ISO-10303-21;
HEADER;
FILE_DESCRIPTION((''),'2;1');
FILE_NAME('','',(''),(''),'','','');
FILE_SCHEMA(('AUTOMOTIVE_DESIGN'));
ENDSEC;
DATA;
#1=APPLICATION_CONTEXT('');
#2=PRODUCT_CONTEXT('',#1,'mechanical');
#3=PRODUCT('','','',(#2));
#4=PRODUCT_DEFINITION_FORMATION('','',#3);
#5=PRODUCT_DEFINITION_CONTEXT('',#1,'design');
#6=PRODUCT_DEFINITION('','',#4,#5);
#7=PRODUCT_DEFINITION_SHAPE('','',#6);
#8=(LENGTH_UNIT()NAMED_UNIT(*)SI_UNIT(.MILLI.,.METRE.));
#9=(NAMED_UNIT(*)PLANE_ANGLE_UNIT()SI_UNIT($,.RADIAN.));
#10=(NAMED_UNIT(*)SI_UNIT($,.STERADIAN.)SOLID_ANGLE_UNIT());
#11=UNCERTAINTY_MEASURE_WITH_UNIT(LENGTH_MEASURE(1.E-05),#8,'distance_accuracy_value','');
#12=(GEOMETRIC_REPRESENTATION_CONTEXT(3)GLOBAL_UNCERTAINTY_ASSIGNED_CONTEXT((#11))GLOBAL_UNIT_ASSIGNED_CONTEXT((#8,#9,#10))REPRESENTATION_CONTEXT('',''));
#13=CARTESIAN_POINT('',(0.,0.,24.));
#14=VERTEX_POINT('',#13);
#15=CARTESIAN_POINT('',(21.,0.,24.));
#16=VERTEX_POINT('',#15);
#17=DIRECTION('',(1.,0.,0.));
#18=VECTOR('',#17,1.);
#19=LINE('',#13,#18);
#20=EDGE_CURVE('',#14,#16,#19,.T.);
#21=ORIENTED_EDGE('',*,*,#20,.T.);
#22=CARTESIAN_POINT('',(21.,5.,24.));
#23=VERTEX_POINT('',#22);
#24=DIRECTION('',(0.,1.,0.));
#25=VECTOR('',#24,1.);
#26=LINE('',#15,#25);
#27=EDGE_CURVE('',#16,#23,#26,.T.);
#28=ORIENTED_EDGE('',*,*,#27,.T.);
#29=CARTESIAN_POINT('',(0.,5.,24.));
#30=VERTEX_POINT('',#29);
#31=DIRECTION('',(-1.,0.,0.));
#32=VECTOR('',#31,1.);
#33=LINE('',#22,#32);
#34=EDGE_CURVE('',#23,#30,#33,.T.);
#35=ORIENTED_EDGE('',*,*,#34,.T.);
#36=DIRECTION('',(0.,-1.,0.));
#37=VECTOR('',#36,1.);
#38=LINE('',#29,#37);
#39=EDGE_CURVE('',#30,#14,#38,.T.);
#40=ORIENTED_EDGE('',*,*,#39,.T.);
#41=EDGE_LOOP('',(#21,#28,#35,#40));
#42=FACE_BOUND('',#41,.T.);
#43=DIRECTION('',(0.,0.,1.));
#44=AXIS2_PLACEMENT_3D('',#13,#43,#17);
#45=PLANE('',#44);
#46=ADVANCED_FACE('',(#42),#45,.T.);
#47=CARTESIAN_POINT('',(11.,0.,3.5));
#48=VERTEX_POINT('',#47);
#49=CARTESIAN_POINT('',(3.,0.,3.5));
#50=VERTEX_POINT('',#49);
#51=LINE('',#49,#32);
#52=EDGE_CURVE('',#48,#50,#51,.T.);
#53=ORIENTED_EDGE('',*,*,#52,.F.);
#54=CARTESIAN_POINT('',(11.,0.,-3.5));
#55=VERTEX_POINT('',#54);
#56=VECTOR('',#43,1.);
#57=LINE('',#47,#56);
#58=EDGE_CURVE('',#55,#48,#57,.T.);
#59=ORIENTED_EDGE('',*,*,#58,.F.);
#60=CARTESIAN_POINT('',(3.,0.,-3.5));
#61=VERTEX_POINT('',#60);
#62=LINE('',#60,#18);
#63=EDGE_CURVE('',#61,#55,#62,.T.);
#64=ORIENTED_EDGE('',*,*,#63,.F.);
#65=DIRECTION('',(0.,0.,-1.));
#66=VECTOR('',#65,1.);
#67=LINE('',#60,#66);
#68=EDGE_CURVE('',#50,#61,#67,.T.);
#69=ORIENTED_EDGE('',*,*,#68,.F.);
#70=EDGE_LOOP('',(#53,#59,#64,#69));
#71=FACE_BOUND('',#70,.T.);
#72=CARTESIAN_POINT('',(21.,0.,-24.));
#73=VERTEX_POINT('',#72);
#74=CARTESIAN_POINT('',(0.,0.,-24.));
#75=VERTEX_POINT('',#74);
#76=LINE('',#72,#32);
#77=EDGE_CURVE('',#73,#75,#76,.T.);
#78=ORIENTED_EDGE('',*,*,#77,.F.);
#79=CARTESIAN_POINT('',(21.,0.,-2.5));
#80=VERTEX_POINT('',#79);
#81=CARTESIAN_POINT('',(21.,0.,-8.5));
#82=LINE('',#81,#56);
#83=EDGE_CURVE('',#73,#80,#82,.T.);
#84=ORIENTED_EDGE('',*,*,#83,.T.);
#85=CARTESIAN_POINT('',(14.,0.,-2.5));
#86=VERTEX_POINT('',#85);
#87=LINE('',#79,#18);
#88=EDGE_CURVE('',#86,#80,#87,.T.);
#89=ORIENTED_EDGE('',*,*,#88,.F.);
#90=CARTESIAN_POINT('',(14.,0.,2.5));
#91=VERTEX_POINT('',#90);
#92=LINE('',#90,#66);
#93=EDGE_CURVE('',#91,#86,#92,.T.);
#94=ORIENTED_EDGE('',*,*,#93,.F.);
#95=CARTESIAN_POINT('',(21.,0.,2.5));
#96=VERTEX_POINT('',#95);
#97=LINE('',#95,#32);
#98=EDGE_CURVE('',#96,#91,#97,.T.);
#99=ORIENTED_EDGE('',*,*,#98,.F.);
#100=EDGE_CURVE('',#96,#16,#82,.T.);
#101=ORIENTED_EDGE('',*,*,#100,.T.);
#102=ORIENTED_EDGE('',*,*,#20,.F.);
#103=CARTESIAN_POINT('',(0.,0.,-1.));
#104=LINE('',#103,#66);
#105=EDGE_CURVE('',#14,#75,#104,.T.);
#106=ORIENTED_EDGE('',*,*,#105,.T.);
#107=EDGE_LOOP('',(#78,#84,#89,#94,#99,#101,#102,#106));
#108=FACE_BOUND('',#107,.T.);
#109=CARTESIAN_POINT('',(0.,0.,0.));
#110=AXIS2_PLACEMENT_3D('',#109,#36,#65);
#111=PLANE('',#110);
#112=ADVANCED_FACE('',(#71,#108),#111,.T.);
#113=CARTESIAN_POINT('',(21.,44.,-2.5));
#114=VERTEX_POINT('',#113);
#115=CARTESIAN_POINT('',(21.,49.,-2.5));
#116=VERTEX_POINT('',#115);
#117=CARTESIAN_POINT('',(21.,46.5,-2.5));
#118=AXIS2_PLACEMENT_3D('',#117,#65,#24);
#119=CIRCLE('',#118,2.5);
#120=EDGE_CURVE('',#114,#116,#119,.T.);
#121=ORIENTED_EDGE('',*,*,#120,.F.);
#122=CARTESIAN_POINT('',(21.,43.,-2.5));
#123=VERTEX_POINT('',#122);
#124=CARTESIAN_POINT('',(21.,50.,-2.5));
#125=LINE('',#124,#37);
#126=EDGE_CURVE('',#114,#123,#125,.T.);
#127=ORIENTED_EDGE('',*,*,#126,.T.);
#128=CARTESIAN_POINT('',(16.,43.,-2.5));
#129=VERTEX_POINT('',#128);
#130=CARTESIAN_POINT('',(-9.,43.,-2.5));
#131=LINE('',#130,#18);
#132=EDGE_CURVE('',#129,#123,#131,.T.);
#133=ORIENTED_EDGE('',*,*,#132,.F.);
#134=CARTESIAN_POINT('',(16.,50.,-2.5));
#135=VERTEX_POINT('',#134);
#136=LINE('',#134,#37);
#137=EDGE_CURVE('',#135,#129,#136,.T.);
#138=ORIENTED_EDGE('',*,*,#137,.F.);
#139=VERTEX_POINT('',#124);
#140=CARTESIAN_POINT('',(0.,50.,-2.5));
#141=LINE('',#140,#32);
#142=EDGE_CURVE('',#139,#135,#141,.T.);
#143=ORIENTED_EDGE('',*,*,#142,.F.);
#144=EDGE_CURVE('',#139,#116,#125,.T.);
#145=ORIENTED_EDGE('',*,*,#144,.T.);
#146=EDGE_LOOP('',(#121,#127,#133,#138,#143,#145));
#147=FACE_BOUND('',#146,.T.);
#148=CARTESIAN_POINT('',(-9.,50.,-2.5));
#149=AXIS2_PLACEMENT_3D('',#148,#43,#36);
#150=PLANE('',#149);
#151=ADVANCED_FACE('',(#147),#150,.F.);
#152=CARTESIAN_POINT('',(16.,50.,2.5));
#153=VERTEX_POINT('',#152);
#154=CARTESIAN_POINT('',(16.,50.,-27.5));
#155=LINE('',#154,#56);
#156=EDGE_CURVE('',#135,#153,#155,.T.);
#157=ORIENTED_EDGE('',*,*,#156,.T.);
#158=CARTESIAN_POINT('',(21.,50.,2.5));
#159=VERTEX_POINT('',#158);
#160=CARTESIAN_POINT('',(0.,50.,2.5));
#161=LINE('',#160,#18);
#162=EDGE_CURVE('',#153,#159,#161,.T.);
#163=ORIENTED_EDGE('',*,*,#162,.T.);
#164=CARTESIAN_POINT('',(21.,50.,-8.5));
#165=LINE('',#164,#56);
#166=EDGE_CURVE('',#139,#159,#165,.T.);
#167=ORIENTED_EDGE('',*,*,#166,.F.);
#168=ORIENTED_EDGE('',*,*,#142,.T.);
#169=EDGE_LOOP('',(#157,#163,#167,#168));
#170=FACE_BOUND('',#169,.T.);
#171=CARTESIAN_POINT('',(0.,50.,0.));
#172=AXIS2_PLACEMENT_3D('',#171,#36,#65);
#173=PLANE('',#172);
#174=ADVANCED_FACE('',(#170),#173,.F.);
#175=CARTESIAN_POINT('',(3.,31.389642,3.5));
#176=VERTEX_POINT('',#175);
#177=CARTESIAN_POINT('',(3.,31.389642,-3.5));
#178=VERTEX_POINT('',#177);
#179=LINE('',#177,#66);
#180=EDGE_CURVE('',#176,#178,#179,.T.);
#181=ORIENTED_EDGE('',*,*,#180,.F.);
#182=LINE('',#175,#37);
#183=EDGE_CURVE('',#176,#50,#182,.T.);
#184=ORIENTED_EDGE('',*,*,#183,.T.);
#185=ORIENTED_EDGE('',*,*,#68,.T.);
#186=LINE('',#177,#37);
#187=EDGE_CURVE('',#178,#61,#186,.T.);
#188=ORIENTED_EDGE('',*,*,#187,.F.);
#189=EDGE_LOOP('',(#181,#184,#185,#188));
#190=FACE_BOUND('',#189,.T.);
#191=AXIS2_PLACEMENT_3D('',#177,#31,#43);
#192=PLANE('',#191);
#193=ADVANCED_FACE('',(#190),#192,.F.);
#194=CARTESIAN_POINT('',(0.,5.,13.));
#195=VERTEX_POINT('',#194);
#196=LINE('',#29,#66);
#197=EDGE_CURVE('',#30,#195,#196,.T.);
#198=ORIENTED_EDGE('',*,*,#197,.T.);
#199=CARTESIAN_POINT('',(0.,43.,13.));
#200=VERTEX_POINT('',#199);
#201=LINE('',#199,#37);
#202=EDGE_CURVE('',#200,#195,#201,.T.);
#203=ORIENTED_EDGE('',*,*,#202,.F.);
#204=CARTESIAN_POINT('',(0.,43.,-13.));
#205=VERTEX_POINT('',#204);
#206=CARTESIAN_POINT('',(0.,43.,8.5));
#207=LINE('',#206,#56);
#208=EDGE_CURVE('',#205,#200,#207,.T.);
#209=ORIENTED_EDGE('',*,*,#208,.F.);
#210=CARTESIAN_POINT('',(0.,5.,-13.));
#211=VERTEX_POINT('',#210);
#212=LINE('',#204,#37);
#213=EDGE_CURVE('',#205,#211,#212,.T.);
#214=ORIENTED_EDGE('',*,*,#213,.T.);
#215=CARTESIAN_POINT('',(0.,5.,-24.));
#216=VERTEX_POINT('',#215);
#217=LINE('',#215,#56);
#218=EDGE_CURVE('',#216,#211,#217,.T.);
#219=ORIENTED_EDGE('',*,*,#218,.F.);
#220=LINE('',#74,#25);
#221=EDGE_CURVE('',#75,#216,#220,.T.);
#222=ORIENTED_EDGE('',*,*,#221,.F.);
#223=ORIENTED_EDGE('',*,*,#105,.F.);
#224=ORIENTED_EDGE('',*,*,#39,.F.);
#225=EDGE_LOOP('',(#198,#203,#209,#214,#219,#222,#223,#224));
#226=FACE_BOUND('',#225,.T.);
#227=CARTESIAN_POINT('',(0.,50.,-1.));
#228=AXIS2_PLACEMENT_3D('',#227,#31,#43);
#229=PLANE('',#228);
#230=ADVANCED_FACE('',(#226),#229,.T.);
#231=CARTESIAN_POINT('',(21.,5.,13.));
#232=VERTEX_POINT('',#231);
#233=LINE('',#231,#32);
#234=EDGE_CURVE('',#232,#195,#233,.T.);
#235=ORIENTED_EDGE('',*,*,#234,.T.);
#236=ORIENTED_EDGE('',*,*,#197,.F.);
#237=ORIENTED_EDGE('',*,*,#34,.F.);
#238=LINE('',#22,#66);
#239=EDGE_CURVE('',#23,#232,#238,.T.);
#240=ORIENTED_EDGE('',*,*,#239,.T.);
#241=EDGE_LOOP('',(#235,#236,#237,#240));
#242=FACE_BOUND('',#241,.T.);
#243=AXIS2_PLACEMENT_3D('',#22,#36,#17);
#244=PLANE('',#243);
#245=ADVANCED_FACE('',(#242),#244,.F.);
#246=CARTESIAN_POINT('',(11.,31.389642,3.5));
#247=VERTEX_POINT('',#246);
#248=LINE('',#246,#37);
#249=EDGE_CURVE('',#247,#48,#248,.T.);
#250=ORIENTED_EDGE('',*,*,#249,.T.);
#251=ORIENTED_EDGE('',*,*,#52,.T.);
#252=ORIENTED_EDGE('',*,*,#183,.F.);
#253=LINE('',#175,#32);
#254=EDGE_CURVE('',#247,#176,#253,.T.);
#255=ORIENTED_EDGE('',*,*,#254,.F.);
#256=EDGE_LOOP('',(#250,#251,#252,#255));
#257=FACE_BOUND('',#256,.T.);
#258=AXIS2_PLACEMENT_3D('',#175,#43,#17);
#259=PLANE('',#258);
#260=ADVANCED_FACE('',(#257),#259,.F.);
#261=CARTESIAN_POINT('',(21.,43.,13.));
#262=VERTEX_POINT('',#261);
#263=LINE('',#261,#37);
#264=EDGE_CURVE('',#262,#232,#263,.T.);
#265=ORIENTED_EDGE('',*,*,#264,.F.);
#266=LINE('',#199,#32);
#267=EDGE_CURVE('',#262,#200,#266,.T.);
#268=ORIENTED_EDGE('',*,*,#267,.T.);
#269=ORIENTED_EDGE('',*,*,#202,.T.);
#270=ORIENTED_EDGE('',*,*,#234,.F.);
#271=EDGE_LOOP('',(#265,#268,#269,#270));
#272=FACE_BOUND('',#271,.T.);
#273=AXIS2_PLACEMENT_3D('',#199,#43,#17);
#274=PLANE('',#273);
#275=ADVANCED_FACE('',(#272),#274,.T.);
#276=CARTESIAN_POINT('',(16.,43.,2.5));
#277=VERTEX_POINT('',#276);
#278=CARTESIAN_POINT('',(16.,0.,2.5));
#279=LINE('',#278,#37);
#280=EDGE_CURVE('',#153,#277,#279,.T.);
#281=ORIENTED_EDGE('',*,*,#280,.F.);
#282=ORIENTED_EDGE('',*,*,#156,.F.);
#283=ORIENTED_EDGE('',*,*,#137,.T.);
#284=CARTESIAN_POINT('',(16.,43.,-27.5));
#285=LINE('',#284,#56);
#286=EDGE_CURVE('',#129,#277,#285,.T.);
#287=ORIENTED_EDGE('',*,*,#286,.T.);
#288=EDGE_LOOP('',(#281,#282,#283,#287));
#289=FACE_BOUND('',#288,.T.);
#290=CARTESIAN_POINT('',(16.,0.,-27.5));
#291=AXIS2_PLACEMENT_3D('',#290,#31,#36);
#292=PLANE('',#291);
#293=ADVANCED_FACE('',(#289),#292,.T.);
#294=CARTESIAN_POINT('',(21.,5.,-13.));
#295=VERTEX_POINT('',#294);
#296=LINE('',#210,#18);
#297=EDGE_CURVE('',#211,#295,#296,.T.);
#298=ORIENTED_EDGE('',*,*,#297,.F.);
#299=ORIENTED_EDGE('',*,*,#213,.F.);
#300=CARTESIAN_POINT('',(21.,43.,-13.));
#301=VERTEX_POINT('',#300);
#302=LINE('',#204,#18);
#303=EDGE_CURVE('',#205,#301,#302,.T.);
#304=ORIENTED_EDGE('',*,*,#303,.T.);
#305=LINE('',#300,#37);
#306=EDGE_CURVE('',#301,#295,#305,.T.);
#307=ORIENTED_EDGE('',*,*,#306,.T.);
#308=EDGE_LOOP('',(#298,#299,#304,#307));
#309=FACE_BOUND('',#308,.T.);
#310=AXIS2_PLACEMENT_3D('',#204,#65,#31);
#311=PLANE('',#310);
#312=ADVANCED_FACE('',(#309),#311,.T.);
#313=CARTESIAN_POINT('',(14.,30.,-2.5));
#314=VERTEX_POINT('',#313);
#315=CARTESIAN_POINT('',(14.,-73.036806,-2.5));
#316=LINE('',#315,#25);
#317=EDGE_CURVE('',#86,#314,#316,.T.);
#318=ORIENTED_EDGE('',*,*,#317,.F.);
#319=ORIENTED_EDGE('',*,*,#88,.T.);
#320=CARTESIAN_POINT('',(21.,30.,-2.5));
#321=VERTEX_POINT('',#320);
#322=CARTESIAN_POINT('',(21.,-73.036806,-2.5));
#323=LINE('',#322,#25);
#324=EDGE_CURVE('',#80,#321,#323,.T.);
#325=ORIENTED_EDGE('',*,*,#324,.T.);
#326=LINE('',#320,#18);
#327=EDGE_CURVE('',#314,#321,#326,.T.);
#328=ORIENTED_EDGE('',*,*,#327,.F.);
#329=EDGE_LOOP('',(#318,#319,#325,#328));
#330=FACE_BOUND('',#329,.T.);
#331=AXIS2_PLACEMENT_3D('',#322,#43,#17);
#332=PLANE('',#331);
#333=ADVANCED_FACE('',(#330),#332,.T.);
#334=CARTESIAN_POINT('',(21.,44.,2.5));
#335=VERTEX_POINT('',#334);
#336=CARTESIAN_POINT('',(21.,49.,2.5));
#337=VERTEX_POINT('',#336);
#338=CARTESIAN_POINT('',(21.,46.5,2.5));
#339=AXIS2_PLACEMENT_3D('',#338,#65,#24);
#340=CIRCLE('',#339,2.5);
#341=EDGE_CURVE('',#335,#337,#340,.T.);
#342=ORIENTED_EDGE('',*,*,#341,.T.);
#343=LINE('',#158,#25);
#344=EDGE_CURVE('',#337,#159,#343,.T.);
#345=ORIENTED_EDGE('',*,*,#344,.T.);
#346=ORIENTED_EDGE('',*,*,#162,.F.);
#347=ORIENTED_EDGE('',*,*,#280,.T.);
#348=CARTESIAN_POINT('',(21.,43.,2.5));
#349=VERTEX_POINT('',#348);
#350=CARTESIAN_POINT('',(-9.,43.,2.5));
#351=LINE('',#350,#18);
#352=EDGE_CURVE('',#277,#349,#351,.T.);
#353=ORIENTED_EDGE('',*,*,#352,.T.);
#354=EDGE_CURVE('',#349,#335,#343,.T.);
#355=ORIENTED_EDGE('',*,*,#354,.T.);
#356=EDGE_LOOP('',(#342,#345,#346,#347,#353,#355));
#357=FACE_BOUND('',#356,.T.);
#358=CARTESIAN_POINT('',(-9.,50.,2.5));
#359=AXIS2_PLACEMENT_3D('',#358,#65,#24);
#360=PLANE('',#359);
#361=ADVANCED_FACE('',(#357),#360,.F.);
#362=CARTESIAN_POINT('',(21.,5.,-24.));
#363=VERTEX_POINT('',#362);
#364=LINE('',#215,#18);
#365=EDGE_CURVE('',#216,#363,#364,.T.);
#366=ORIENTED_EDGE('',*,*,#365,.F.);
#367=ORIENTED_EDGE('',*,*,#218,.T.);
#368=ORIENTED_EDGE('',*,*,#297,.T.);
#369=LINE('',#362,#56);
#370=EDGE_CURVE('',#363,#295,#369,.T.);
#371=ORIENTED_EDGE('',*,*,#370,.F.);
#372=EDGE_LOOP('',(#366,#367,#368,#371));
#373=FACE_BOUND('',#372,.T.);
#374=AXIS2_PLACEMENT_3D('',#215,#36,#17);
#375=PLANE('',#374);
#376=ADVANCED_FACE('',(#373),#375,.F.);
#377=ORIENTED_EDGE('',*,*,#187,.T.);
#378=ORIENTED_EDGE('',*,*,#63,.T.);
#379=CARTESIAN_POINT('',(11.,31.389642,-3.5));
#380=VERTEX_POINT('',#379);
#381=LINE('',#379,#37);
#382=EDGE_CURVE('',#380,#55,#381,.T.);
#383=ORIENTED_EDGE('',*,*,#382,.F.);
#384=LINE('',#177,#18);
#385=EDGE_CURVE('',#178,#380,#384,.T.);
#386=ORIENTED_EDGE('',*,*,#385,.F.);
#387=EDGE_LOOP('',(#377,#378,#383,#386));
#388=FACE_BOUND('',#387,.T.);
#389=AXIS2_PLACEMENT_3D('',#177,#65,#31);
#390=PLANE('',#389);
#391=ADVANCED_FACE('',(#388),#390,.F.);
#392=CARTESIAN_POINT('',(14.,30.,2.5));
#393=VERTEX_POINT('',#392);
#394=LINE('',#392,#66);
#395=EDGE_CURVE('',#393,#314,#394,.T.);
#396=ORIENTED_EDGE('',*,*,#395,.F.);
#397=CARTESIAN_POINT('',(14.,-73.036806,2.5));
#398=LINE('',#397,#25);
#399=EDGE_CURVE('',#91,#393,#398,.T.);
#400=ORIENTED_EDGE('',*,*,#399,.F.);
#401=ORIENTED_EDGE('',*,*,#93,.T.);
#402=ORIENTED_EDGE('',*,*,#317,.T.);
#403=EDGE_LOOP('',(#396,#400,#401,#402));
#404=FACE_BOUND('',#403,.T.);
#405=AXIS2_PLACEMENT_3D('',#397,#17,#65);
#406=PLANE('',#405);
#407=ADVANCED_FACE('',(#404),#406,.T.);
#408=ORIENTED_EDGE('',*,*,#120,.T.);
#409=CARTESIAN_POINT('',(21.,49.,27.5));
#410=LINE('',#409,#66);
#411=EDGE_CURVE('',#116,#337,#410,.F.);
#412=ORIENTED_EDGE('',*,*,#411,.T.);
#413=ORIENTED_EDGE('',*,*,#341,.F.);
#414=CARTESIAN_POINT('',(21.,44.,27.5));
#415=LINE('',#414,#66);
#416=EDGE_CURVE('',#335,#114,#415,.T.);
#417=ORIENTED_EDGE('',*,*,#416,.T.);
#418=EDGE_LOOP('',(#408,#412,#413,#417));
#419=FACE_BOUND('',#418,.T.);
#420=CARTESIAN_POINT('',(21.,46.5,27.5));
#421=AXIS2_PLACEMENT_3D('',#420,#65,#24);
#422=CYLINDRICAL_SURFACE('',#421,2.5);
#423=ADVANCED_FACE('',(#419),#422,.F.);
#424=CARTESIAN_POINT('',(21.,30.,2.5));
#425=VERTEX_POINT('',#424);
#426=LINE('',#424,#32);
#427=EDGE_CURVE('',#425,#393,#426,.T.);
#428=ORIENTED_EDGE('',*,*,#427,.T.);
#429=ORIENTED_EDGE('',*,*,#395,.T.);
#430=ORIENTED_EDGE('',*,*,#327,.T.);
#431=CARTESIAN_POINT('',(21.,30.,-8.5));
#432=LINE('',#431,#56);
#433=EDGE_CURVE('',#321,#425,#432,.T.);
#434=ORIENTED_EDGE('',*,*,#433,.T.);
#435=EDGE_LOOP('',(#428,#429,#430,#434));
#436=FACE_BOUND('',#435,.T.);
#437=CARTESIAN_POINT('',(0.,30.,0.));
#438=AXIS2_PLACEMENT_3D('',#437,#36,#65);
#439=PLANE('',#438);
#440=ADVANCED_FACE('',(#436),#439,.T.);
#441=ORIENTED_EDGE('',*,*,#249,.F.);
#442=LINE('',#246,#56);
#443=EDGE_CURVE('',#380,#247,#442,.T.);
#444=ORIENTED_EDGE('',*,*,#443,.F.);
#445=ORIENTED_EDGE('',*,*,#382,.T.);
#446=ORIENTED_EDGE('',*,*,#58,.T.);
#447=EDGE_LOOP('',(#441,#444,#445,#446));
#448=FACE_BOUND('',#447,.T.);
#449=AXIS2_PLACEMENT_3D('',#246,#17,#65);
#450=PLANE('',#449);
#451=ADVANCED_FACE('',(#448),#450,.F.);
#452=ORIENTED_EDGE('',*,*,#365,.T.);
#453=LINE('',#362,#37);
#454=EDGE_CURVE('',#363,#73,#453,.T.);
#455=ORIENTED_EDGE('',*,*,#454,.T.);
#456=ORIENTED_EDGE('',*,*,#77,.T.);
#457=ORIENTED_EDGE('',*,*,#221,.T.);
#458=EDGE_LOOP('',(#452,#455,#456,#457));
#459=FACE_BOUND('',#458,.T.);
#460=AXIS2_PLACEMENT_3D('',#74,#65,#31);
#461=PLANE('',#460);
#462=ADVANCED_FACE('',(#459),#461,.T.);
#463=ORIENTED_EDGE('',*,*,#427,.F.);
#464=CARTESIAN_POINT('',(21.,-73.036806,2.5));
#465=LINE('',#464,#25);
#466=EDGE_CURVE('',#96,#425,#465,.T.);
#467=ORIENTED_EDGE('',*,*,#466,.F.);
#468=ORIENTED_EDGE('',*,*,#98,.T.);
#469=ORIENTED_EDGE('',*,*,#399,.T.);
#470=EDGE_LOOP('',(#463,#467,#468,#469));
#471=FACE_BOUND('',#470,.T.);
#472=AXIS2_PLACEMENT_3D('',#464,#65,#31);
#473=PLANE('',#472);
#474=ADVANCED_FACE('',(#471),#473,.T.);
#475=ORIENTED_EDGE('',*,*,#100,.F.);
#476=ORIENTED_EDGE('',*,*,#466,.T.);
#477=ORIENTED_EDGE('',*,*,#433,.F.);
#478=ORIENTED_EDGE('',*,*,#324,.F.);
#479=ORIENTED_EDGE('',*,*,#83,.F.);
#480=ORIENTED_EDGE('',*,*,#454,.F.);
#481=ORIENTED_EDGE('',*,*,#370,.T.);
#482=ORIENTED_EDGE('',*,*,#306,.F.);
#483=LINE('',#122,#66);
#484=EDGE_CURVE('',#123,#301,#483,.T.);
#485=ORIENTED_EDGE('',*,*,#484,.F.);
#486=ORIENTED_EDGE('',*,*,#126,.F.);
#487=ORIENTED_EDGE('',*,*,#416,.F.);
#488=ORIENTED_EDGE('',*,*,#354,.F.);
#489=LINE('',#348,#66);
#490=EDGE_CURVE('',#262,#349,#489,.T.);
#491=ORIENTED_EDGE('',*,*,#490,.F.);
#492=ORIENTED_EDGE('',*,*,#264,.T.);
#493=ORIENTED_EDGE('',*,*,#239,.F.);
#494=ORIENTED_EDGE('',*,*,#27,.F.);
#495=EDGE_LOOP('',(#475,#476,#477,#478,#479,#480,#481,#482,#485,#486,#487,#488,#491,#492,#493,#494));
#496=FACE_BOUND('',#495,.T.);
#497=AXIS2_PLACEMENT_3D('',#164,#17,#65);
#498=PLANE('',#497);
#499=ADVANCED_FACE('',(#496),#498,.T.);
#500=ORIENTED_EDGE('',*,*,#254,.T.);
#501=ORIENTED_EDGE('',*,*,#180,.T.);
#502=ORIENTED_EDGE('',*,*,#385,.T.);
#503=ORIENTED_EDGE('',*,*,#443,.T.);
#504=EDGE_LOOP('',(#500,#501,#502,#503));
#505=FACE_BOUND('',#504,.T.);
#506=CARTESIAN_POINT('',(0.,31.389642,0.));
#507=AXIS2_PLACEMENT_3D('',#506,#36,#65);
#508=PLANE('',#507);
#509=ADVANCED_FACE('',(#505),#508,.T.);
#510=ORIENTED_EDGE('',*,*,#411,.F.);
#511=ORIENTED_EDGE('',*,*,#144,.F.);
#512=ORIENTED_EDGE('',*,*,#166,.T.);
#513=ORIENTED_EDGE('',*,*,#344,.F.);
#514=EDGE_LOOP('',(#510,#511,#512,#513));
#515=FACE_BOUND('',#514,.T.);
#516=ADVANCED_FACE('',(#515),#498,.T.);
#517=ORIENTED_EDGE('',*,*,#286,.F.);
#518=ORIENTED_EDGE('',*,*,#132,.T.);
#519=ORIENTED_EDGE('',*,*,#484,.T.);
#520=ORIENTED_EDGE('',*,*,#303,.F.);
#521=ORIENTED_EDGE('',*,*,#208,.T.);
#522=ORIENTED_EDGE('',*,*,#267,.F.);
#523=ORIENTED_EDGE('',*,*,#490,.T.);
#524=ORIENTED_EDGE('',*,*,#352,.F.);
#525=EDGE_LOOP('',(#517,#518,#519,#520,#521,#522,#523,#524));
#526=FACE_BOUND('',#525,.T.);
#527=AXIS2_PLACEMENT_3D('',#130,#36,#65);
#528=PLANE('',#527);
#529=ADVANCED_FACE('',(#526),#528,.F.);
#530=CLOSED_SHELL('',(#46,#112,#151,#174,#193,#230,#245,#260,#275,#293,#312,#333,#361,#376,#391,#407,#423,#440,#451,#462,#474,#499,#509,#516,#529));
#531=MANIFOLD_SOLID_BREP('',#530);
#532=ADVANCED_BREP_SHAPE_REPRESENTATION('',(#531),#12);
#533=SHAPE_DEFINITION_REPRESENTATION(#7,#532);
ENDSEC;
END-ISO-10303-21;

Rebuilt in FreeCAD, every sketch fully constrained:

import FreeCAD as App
import Part
import Sketcher
from FreeCAD import Vector

doc = App.newDocument("Part")
params = doc.addObject("Spreadsheet::Sheet", "Params")
for row, (alias, value) in enumerate([
    ("sketch1_width", "21 mm"),
    ("sketch1_width2", "2 mm"),
    ("sketch1_height", "17 mm"),
    ("sketch1_height2", "6 mm"),
    ("pad1_length", "50 mm"),
    ("sketch2_width", "8 mm"),
    ("sketch2_height", "7 mm"),
    ("pocket1_length", "31.389642 mm"),
    ("sketch3_width", "7 mm"),
    ("sketch3_height", "5 mm"),
    ("pocket2_length", "55.893078 mm"),
    ("pocket2_length2", "30 mm"),
    ("sketch4_width", "7 mm"),
    ("sketch4_height", "6 mm"),
    ("pocket3_length", "30 mm"),
    ("sketch5_height", "7 mm"),
    ("pocket4_length", "30 mm"),
    ("sketch6_diameter", "5 mm"),
    ("pocket5_length", "30 mm"),
    ("sketch7_width", "21 mm"),
    ("sketch7_height", "3 mm"),
    ("pocket6_length", "50 mm"),
    ("sketch8_width", "4 mm"),
    ("pocket7_length", "50 mm"),
    ("sketch9_width", "21 mm"),
    ("sketch9_height", "7.5 mm"),
    ("pad2_length", "43 mm"),
    ("sketch10_width", "21 mm"),
    ("sketch10_height", "5 mm"),
    ("pad3_length", "11 mm"),
    ("sketch11_width", "21 mm"),
    ("sketch11_height", "5 mm"),
    ("pad4_length", "11 mm"),
], start=1):
    params.set(f"A{row}", alias)
    params.set(f"B{row}", "=" + value)
    params.setAlias(f"B{row}", alias)

body = doc.addObject("PartDesign::Body", "Body")

# Sketch on XZ plane
sketch1 = body.newObject("Sketcher::SketchObject", "Sketch")
sketch1.AttachmentSupport = (doc.getObject("XZ_Plane"), [""])
sketch1.MapMode = "FlatFace"
sketch1.addGeometry(Part.LineSegment(Vector(0, 1, 0), Vector(0, 8.5, 0)), False)
sketch1.addGeometry(Part.LineSegment(Vector(0, 8.5, 0), Vector(21, 8.5, 0)), False)
sketch1.addGeometry(Part.LineSegment(Vector(21, 8.5, 0), Vector(21, -8.5, 0)), False)
sketch1.addGeometry(Part.LineSegment(Vector(21, -8.5, 0), Vector(0, -8.5, 0)), False)
sketch1.addGeometry(Part.LineSegment(Vector(0, -8.5, 0), Vector(0, -1, 0)), False)
sketch1.addGeometry(Part.LineSegment(Vector(0, -1, 0), Vector(-2, -1, 0)), False)
sketch1.addGeometry(Part.LineSegment(Vector(-2, -1, 0), Vector(-2, -3, 0)), False)
sketch1.addGeometry(Part.LineSegment(Vector(-2, -3, 0), Vector(-4, -3, 0)), False)
sketch1.addGeometry(Part.LineSegment(Vector(-4, -3, 0), Vector(-4, 3, 0)), False)
sketch1.addGeometry(Part.LineSegment(Vector(-4, 3, 0), Vector(-2, 3, 0)), False)
sketch1.addGeometry(Part.LineSegment(Vector(-2, 3, 0), Vector(-2, 1, 0)), False)
sketch1.addGeometry(Part.LineSegment(Vector(-2, 1, 0), Vector(0, 1, 0)), False)
sketch1.addConstraint(Sketcher.Constraint("Coincident", 0, 2, 1, 1))
sketch1.addConstraint(Sketcher.Constraint("Coincident", 1, 2, 2, 1))
sketch1.addConstraint(Sketcher.Constraint("Coincident", 2, 2, 3, 1))
sketch1.addConstraint(Sketcher.Constraint("Coincident", 3, 2, 4, 1))
sketch1.addConstraint(Sketcher.Constraint("Coincident", 4, 2, 5, 1))
sketch1.addConstraint(Sketcher.Constraint("Coincident", 5, 2, 6, 1))
sketch1.addConstraint(Sketcher.Constraint("Coincident", 6, 2, 7, 1))
sketch1.addConstraint(Sketcher.Constraint("Coincident", 7, 2, 8, 1))
sketch1.addConstraint(Sketcher.Constraint("Coincident", 8, 2, 9, 1))
sketch1.addConstraint(Sketcher.Constraint("Coincident", 9, 2, 10, 1))
sketch1.addConstraint(Sketcher.Constraint("Coincident", 10, 2, 11, 1))
sketch1.addConstraint(Sketcher.Constraint("Coincident", 11, 2, 0, 1))
sketch1.addConstraint(Sketcher.Constraint("Vertical", 0))
sketch1.addConstraint(Sketcher.Constraint("Horizontal", 1))
sketch1.addConstraint(Sketcher.Constraint("Vertical", 2))
sketch1.addConstraint(Sketcher.Constraint("Horizontal", 3))
sketch1.addConstraint(Sketcher.Constraint("Vertical", 4))
sketch1.addConstraint(Sketcher.Constraint("Horizontal", 5))
sketch1.addConstraint(Sketcher.Constraint("Vertical", 6))
sketch1.addConstraint(Sketcher.Constraint("Horizontal", 7))
sketch1.addConstraint(Sketcher.Constraint("Vertical", 8))
sketch1.addConstraint(Sketcher.Constraint("Horizontal", 9))
sketch1.addConstraint(Sketcher.Constraint("Vertical", 10))
sketch1.addConstraint(Sketcher.Constraint("Horizontal", 11))
sketch1.addConstraint(Sketcher.Constraint("Symmetric", 0, 2, 3, 2, -1, 1))
sketch1.addConstraint(Sketcher.Constraint("Symmetric", 6, 2, 9, 2, -1))
sketch1.addConstraint(Sketcher.Constraint("Symmetric", 4, 2, 11, 2, -1))
sketch1.addConstraint(Sketcher.Constraint("Equal", 5, 7))
sketch1.addConstraint(Sketcher.Constraint("Equal", 11, 6))
sketch1.addConstraint(Sketcher.Constraint("DistanceX", 1, 1, 1, 2, 21.0))
sketch1.addConstraint(Sketcher.Constraint("DistanceX", 5, 2, 5, 1, 2.0))
sketch1.addConstraint(Sketcher.Constraint("DistanceY", 2, 2, 2, 1, 17.0))
sketch1.addConstraint(Sketcher.Constraint("DistanceY", 8, 1, 8, 2, 6.0))
sketch1.setExpression("Constraints[29]", "Params.sketch1_width")
sketch1.setExpression("Constraints[30]", "Params.sketch1_width2")
sketch1.setExpression("Constraints[31]", "Params.sketch1_height")
sketch1.setExpression("Constraints[32]", "Params.sketch1_height2")
pad1 = body.newObject("PartDesign::Pad", "Pad")
pad1.Profile = sketch1
pad1.setExpression("Length", "Params.pad1_length")
pad1.Reversed = True

# Sketch on XZ plane
sketch2 = body.newObject("Sketcher::SketchObject", "Sketch001")
sketch2.AttachmentSupport = (doc.getObject("XZ_Plane"), [""])
sketch2.MapMode = "FlatFace"
sketch2.addGeometry(Part.LineSegment(Vector(3, 4, 0), Vector(3, -4, 0)), False)
sketch2.addGeometry(Part.LineSegment(Vector(3, -4, 0), Vector(11, -4, 0)), False)
sketch2.addGeometry(Part.LineSegment(Vector(11, -4, 0), Vector(11, 4, 0)), False)
sketch2.addGeometry(Part.LineSegment(Vector(11, 4, 0), Vector(3, 4, 0)), False)
sketch2.addConstraint(Sketcher.Constraint("Coincident", 0, 2, 1, 1))
sketch2.addConstraint(Sketcher.Constraint("Coincident", 1, 2, 2, 1))
sketch2.addConstraint(Sketcher.Constraint("Coincident", 2, 2, 3, 1))
sketch2.addConstraint(Sketcher.Constraint("Coincident", 3, 2, 0, 1))
sketch2.addConstraint(Sketcher.Constraint("Vertical", 0))
sketch2.addConstraint(Sketcher.Constraint("Horizontal", 1))
sketch2.addConstraint(Sketcher.Constraint("Vertical", 2))
sketch2.addConstraint(Sketcher.Constraint("Horizontal", 3))
sketch2.addConstraint(Sketcher.Constraint("DistanceX", 1, 1, 1, 2, 8.0))
sketch2.addConstraint(Sketcher.Constraint("DistanceY", 0, 2, 0, 1, 7.0))
sketch2.addConstraint(Sketcher.Constraint("DistanceX", -1, 1, 0, 2, 3.0))
sketch2.addConstraint(Sketcher.Constraint("DistanceY", 0, 2, -1, 1, 3.5))
sketch2.setExpression("Constraints[8]", "Params.sketch2_width")
sketch2.setExpression("Constraints[9]", "Params.sketch2_height")
pocket1 = body.newObject("PartDesign::Pocket", "Pocket")
pocket1.Profile = sketch2
pocket1.setExpression("Length", "Params.pocket1_length")

# Sketch on XZ plane
sketch3 = body.newObject("Sketcher::SketchObject", "Sketch002")
sketch3.AttachmentSupport = (doc.getObject("XZ_Plane"), [""])
sketch3.MapMode = "FlatFace"
sketch3.addGeometry(Part.LineSegment(Vector(21, 2, 0), Vector(14, 2, 0)), False)
sketch3.addGeometry(Part.LineSegment(Vector(14, 2, 0), Vector(14, -2, 0)), False)
sketch3.addGeometry(Part.LineSegment(Vector(14, -2, 0), Vector(21, -2, 0)), False)
sketch3.addGeometry(Part.LineSegment(Vector(21, -2, 0), Vector(21, 2, 0)), False)
sketch3.addConstraint(Sketcher.Constraint("Coincident", 0, 2, 1, 1))
sketch3.addConstraint(Sketcher.Constraint("Coincident", 1, 2, 2, 1))
sketch3.addConstraint(Sketcher.Constraint("Coincident", 2, 2, 3, 1))
sketch3.addConstraint(Sketcher.Constraint("Coincident", 3, 2, 0, 1))
sketch3.addConstraint(Sketcher.Constraint("Horizontal", 0))
sketch3.addConstraint(Sketcher.Constraint("Vertical", 1))
sketch3.addConstraint(Sketcher.Constraint("Horizontal", 2))
sketch3.addConstraint(Sketcher.Constraint("Vertical", 3))
sketch3.addConstraint(Sketcher.Constraint("DistanceX", 0, 2, 0, 1, 7.0))
sketch3.addConstraint(Sketcher.Constraint("DistanceY", 1, 2, 1, 1, 5.0))
sketch3.addConstraint(Sketcher.Constraint("DistanceX", -1, 1, 0, 2, 14.0))
sketch3.addConstraint(Sketcher.Constraint("DistanceY", -1, 1, 0, 2, 2.5))
sketch3.setExpression("Constraints[8]", "Params.sketch3_width")
sketch3.setExpression("Constraints[9]", "Params.sketch3_height")
pocket2 = body.newObject("PartDesign::Pocket", "Pocket001")
pocket2.Profile = sketch3
pocket2.Type = "TwoLengths"
pocket2.setExpression("Length", "Params.pocket2_length")
pocket2.setExpression("Length2", "Params.pocket2_length2")
pocket2.Reversed = True

# Sketch on YZ plane
sketch4 = body.newObject("Sketcher::SketchObject", "Sketch003")
sketch4.AttachmentSupport = (doc.getObject("YZ_Plane"), [""])
sketch4.MapMode = "FlatFace"
sketch4.AttachmentOffset = App.Placement(Vector(0, 0, 21), App.Rotation())
sketch4.addGeometry(Part.LineSegment(Vector(50, 8, 0), Vector(43, 8, 0)), False)
sketch4.addGeometry(Part.LineSegment(Vector(43, 8, 0), Vector(43, 2, 0)), False)
sketch4.addGeometry(Part.LineSegment(Vector(43, 2, 0), Vector(50, 2, 0)), False)
sketch4.addGeometry(Part.LineSegment(Vector(50, 2, 0), Vector(50, 8, 0)), False)
sketch4.addGeometry(Part.LineSegment(Vector(50, -2, 0), Vector(43, -2, 0)), False)
sketch4.addGeometry(Part.LineSegment(Vector(43, -2, 0), Vector(43, -8, 0)), False)
sketch4.addGeometry(Part.LineSegment(Vector(43, -8, 0), Vector(50, -8, 0)), False)
sketch4.addGeometry(Part.LineSegment(Vector(50, -8, 0), Vector(50, -2, 0)), False)
sketch4.addConstraint(Sketcher.Constraint("Coincident", 0, 2, 1, 1))
sketch4.addConstraint(Sketcher.Constraint("Coincident", 1, 2, 2, 1))
sketch4.addConstraint(Sketcher.Constraint("Coincident", 2, 2, 3, 1))
sketch4.addConstraint(Sketcher.Constraint("Coincident", 3, 2, 0, 1))
sketch4.addConstraint(Sketcher.Constraint("Coincident", 4, 2, 5, 1))
sketch4.addConstraint(Sketcher.Constraint("Coincident", 5, 2, 6, 1))
sketch4.addConstraint(Sketcher.Constraint("Coincident", 6, 2, 7, 1))
sketch4.addConstraint(Sketcher.Constraint("Coincident", 7, 2, 4, 1))
sketch4.addConstraint(Sketcher.Constraint("Horizontal", 0))
sketch4.addConstraint(Sketcher.Constraint("Vertical", 1))
sketch4.addConstraint(Sketcher.Constraint("Horizontal", 2))
sketch4.addConstraint(Sketcher.Constraint("Vertical", 3))
sketch4.addConstraint(Sketcher.Constraint("Horizontal", 4))
sketch4.addConstraint(Sketcher.Constraint("Vertical", 5))
sketch4.addConstraint(Sketcher.Constraint("Horizontal", 6))
sketch4.addConstraint(Sketcher.Constraint("Vertical", 7))
sketch4.addConstraint(Sketcher.Constraint("Symmetric", 1, 2, 4, 2, -1))
sketch4.addConstraint(Sketcher.Constraint("Symmetric", 3, 2, 6, 2, -1))
sketch4.addConstraint(Sketcher.Constraint("DistanceX", 0, 2, 0, 1, 7.0))
sketch4.addConstraint(Sketcher.Constraint("DistanceY", 1, 2, 1, 1, 6.0))
sketch4.addConstraint(Sketcher.Constraint("DistanceX", -1, 1, 0, 2, 43.0))
sketch4.addConstraint(Sketcher.Constraint("DistanceY", 4, 2, 1, 2, 5.0))
sketch4.setExpression("Constraints[18]", "Params.sketch4_width")
sketch4.setExpression("Constraints[19]", "Params.sketch4_height")
pocket3 = body.newObject("PartDesign::Pocket", "Pocket002")
pocket3.Profile = sketch4
pocket3.setExpression("Length", "Params.pocket3_length")

# Sketch on XY plane
sketch5 = body.newObject("Sketcher::SketchObject", "Sketch004")
sketch5.AttachmentSupport = (doc.getObject("XY_Plane"), [""])
sketch5.MapMode = "FlatFace"
sketch5.AttachmentOffset = App.Placement(Vector(0, 0, 2.5), App.Rotation())
sketch5.addGeometry(Part.LineSegment(Vector(16, 43, 0), Vector(16, 50, 0)), False)
sketch5.addGeometry(Part.LineSegment(Vector(16, 50, 0), Vector(-7, 50, 0)), False)
sketch5.addGeometry(Part.LineSegment(Vector(-7, 50, 0), Vector(-7, 43, 0)), False)
sketch5.addGeometry(Part.LineSegment(Vector(-7, 43, 0), Vector(16, 43, 0)), False)
sketch5.addConstraint(Sketcher.Constraint("Coincident", 0, 2, 1, 1))
sketch5.addConstraint(Sketcher.Constraint("Coincident", 1, 2, 2, 1))
sketch5.addConstraint(Sketcher.Constraint("Coincident", 2, 2, 3, 1))
sketch5.addConstraint(Sketcher.Constraint("Coincident", 3, 2, 0, 1))
sketch5.addConstraint(Sketcher.Constraint("Vertical", 0))
sketch5.addConstraint(Sketcher.Constraint("Horizontal", 1))
sketch5.addConstraint(Sketcher.Constraint("Vertical", 2))
sketch5.addConstraint(Sketcher.Constraint("Horizontal", 3))
sketch5.addConstraint(Sketcher.Constraint("DistanceY", 0, 1, 0, 2, 7.0))
sketch5.addConstraint(Sketcher.Constraint("DistanceX", -1, 1, 0, 2, 16.0))
sketch5.addConstraint(Sketcher.Constraint("DistanceY", -1, 1, 0, 2, 50.0))
sketch5.addConstraint(Sketcher.Constraint("DistanceX", 1, 2, 1, 1, 22.921663))
sketch5.setExpression("Constraints[8]", "Params.sketch5_height")
pocket4 = body.newObject("PartDesign::Pocket", "Pocket003")
pocket4.Profile = sketch5
pocket4.setExpression("Length", "Params.pocket4_length")

# Sketch on XY plane
sketch6 = body.newObject("Sketcher::SketchObject", "Sketch005")
sketch6.AttachmentSupport = (doc.getObject("XY_Plane"), [""])
sketch6.MapMode = "FlatFace"
sketch6.AttachmentOffset = App.Placement(Vector(0, 0, -2.5), App.Rotation())
sketch6.addGeometry(Part.Circle(Vector(21, 46.5, 0), Vector(0, 0, 1), 2.5), False)
sketch6.addConstraint(Sketcher.Constraint("Diameter", 0, 5.0))
sketch6.addConstraint(Sketcher.Constraint("DistanceX", -1, 1, 0, 3, 21.0))
sketch6.addConstraint(Sketcher.Constraint("DistanceY", -1, 1, 0, 3, 46.5))
sketch6.setExpression("Constraints[0]", "Params.sketch6_diameter")
pocket5 = body.newObject("PartDesign::Pocket", "Pocket004")
pocket5.Profile = sketch6
pocket5.setExpression("Length", "Params.pocket5_length")
pocket5.Reversed = True

# Sketch on XZ plane
sketch7 = body.newObject("Sketcher::SketchObject", "Sketch006")
sketch7.AttachmentSupport = (doc.getObject("XZ_Plane"), [""])
sketch7.MapMode = "FlatFace"
sketch7.addGeometry(Part.LineSegment(Vector(21, 5.5, 0), Vector(21, 8.5, 0)), False)
sketch7.addGeometry(Part.LineSegment(Vector(21, 8.5, 0), Vector(0, 8.5, 0)), False)
sketch7.addGeometry(Part.LineSegment(Vector(0, 8.5, 0), Vector(0, 5.5, 0)), False)
sketch7.addGeometry(Part.LineSegment(Vector(0, 5.5, 0), Vector(21, 5.5, 0)), False)
sketch7.addGeometry(Part.LineSegment(Vector(21, -8.5, 0), Vector(21, -5.5, 0)), False)
sketch7.addGeometry(Part.LineSegment(Vector(21, -5.5, 0), Vector(0, -5.5, 0)), False)
sketch7.addGeometry(Part.LineSegment(Vector(0, -5.5, 0), Vector(0, -8.5, 0)), False)
sketch7.addGeometry(Part.LineSegment(Vector(0, -8.5, 0), Vector(21, -8.5, 0)), False)
sketch7.addConstraint(Sketcher.Constraint("Coincident", 0, 2, 1, 1))
sketch7.addConstraint(Sketcher.Constraint("Coincident", 1, 2, 2, 1))
sketch7.addConstraint(Sketcher.Constraint("Coincident", 2, 2, 3, 1))
sketch7.addConstraint(Sketcher.Constraint("Coincident", 3, 2, 0, 1))
sketch7.addConstraint(Sketcher.Constraint("Coincident", 4, 2, 5, 1))
sketch7.addConstraint(Sketcher.Constraint("Coincident", 5, 2, 6, 1))
sketch7.addConstraint(Sketcher.Constraint("Coincident", 6, 2, 7, 1))
sketch7.addConstraint(Sketcher.Constraint("Coincident", 7, 2, 4, 1))
sketch7.addConstraint(Sketcher.Constraint("Vertical", 0))
sketch7.addConstraint(Sketcher.Constraint("Horizontal", 1))
sketch7.addConstraint(Sketcher.Constraint("Vertical", 2))
sketch7.addConstraint(Sketcher.Constraint("Horizontal", 3))
sketch7.addConstraint(Sketcher.Constraint("Vertical", 4))
sketch7.addConstraint(Sketcher.Constraint("Horizontal", 5))
sketch7.addConstraint(Sketcher.Constraint("Vertical", 6))
sketch7.addConstraint(Sketcher.Constraint("Horizontal", 7))
sketch7.addConstraint(Sketcher.Constraint("Symmetric", 2, 2, 5, 2, -1, 1))
sketch7.addConstraint(Sketcher.Constraint("Symmetric", 1, 2, 6, 2, -1))
sketch7.addConstraint(Sketcher.Constraint("Vertical", 3, 2, 4, 2))
sketch7.addConstraint(Sketcher.Constraint("DistanceX", 1, 2, 1, 1, 21.0))
sketch7.addConstraint(Sketcher.Constraint("DistanceY", 0, 1, 0, 2, 3.0))
sketch7.addConstraint(Sketcher.Constraint("DistanceY", 4, 2, 3, 2, 11.0))
sketch7.setExpression("Constraints[19]", "Params.sketch7_width")
sketch7.setExpression("Constraints[20]", "Params.sketch7_height")
pocket6 = body.newObject("PartDesign::Pocket", "Pocket005")
pocket6.Profile = sketch7
pocket6.setExpression("Length", "Params.pocket6_length")

# Sketch on XZ plane
sketch8 = body.newObject("Sketcher::SketchObject", "Sketch007")
sketch8.AttachmentSupport = (doc.getObject("XZ_Plane"), [""])
sketch8.MapMode = "FlatFace"
sketch8.addGeometry(Part.LineSegment(Vector(-4, 3, 0), Vector(-4, -3, 0)), False)
sketch8.addGeometry(Part.LineSegment(Vector(-4, -3, 0), Vector(0, -3, 0)), False)
sketch8.addGeometry(Part.LineSegment(Vector(0, -3, 0), Vector(0, 3, 0)), False)
sketch8.addGeometry(Part.LineSegment(Vector(0, 3, 0), Vector(-4, 3, 0)), False)
sketch8.addConstraint(Sketcher.Constraint("Coincident", 0, 2, 1, 1))
sketch8.addConstraint(Sketcher.Constraint("Coincident", 1, 2, 2, 1))
sketch8.addConstraint(Sketcher.Constraint("Coincident", 2, 2, 3, 1))
sketch8.addConstraint(Sketcher.Constraint("Coincident", 3, 2, 0, 1))
sketch8.addConstraint(Sketcher.Constraint("Vertical", 0))
sketch8.addConstraint(Sketcher.Constraint("Horizontal", 1))
sketch8.addConstraint(Sketcher.Constraint("Vertical", 2))
sketch8.addConstraint(Sketcher.Constraint("Horizontal", 3))
sketch8.addConstraint(Sketcher.Constraint("PointOnObject", 1, 2, -2))
sketch8.addConstraint(Sketcher.Constraint("DistanceX", 1, 1, 1, 2, 4.0))
sketch8.addConstraint(Sketcher.Constraint("DistanceY", -1, 1, 2, 2, 3.0))
sketch8.addConstraint(Sketcher.Constraint("DistanceY", 0, 2, 0, 1, 6.019642))
sketch8.setExpression("Constraints[9]", "Params.sketch8_width")
pocket7 = body.newObject("PartDesign::Pocket", "Pocket006")
pocket7.Profile = sketch8
pocket7.setExpression("Length", "Params.pocket7_length")

# Sketch on XZ plane
sketch9 = body.newObject("Sketcher::SketchObject", "Sketch008")
sketch9.AttachmentSupport = (doc.getObject("XZ_Plane"), [""])
sketch9.MapMode = "FlatFace"
sketch9.AttachmentOffset = App.Placement(Vector(0, 0, -43), App.Rotation())
sketch9.addGeometry(Part.LineSegment(Vector(0, -6, 0), Vector(0, -13, 0)), False)
sketch9.addGeometry(Part.LineSegment(Vector(0, -13, 0), Vector(21, -13, 0)), False)
sketch9.addGeometry(Part.LineSegment(Vector(21, -13, 0), Vector(21, -6, 0)), False)
sketch9.addGeometry(Part.LineSegment(Vector(21, -6, 0), Vector(0, -6, 0)), False)
sketch9.addGeometry(Part.LineSegment(Vector(0, 13, 0), Vector(0, 6, 0)), False)
sketch9.addGeometry(Part.LineSegment(Vector(0, 6, 0), Vector(21, 6, 0)), False)
sketch9.addGeometry(Part.LineSegment(Vector(21, 6, 0), Vector(21, 13, 0)), False)
sketch9.addGeometry(Part.LineSegment(Vector(21, 13, 0), Vector(0, 13, 0)), False)
sketch9.addConstraint(Sketcher.Constraint("Coincident", 0, 2, 1, 1))
sketch9.addConstraint(Sketcher.Constraint("Coincident", 1, 2, 2, 1))
sketch9.addConstraint(Sketcher.Constraint("Coincident", 2, 2, 3, 1))
sketch9.addConstraint(Sketcher.Constraint("Coincident", 3, 2, 0, 1))
sketch9.addConstraint(Sketcher.Constraint("Coincident", 4, 2, 5, 1))
sketch9.addConstraint(Sketcher.Constraint("Coincident", 5, 2, 6, 1))
sketch9.addConstraint(Sketcher.Constraint("Coincident", 6, 2, 7, 1))
sketch9.addConstraint(Sketcher.Constraint("Coincident", 7, 2, 4, 1))
sketch9.addConstraint(Sketcher.Constraint("Vertical", 0))
sketch9.addConstraint(Sketcher.Constraint("Horizontal", 1))
sketch9.addConstraint(Sketcher.Constraint("Vertical", 2))
sketch9.addConstraint(Sketcher.Constraint("Horizontal", 3))
sketch9.addConstraint(Sketcher.Constraint("Vertical", 4))
sketch9.addConstraint(Sketcher.Constraint("Horizontal", 5))
sketch9.addConstraint(Sketcher.Constraint("Vertical", 6))
sketch9.addConstraint(Sketcher.Constraint("Horizontal", 7))
sketch9.addConstraint(Sketcher.Constraint("Symmetric", 3, 2, 4, 2, -1, 1))
sketch9.addConstraint(Sketcher.Constraint("Symmetric", 1, 2, 6, 2, -1))
sketch9.addConstraint(Sketcher.Constraint("PointOnObject", 0, 2, -2))
sketch9.addConstraint(Sketcher.Constraint("DistanceX", 1, 1, 1, 2, 21.0))
sketch9.addConstraint(Sketcher.Constraint("DistanceY", 0, 2, 0, 1, 7.5))
sketch9.addConstraint(Sketcher.Constraint("DistanceY", 0, 2, -1, 1, 13.0))
sketch9.setExpression("Constraints[19]", "Params.sketch9_width")
sketch9.setExpression("Constraints[20]", "Params.sketch9_height")
pad2 = body.newObject("PartDesign::Pad", "Pad001")
pad2.Profile = sketch9
pad2.setExpression("Length", "Params.pad2_length")

# Sketch on XY plane
sketch10 = body.newObject("Sketcher::SketchObject", "Sketch009")
sketch10.AttachmentSupport = (doc.getObject("XY_Plane"), [""])
sketch10.MapMode = "FlatFace"
sketch10.AttachmentOffset = App.Placement(Vector(0, 0, 13), App.Rotation())
sketch10.addGeometry(Part.LineSegment(Vector(0, 5, 0), Vector(0, 0, 0)), False)
sketch10.addGeometry(Part.LineSegment(Vector(0, 0, 0), Vector(21, 0, 0)), False)
sketch10.addGeometry(Part.LineSegment(Vector(21, 0, 0), Vector(21, 5, 0)), False)
sketch10.addGeometry(Part.LineSegment(Vector(21, 5, 0), Vector(0, 5, 0)), False)
sketch10.addConstraint(Sketcher.Constraint("Coincident", 0, 2, 1, 1))
sketch10.addConstraint(Sketcher.Constraint("Coincident", 1, 2, 2, 1))
sketch10.addConstraint(Sketcher.Constraint("Coincident", 2, 2, 3, 1))
sketch10.addConstraint(Sketcher.Constraint("Coincident", 3, 2, 0, 1))
sketch10.addConstraint(Sketcher.Constraint("Vertical", 0))
sketch10.addConstraint(Sketcher.Constraint("Horizontal", 1))
sketch10.addConstraint(Sketcher.Constraint("Vertical", 2))
sketch10.addConstraint(Sketcher.Constraint("Horizontal", 3))
sketch10.addConstraint(Sketcher.Constraint("Coincident", 0, 2, -1, 1))
sketch10.addConstraint(Sketcher.Constraint("DistanceX", 1, 1, 1, 2, 21.0))
sketch10.addConstraint(Sketcher.Constraint("DistanceY", 0, 2, 0, 1, 5.0))
sketch10.setExpression("Constraints[9]", "Params.sketch10_width")
sketch10.setExpression("Constraints[10]", "Params.sketch10_height")
pad3 = body.newObject("PartDesign::Pad", "Pad002")
pad3.Profile = sketch10
pad3.setExpression("Length", "Params.pad3_length")

# Sketch on XY plane
sketch11 = body.newObject("Sketcher::SketchObject", "Sketch010")
sketch11.AttachmentSupport = (doc.getObject("XY_Plane"), [""])
sketch11.MapMode = "FlatFace"
sketch11.AttachmentOffset = App.Placement(Vector(0, 0, -13), App.Rotation())
sketch11.addGeometry(Part.LineSegment(Vector(21, 5, 0), Vector(21, 0, 0)), False)
sketch11.addGeometry(Part.LineSegment(Vector(21, 0, 0), Vector(0, 0, 0)), False)
sketch11.addGeometry(Part.LineSegment(Vector(0, 0, 0), Vector(0, 5, 0)), False)
sketch11.addGeometry(Part.LineSegment(Vector(0, 5, 0), Vector(21, 5, 0)), False)
sketch11.addConstraint(Sketcher.Constraint("Coincident", 0, 2, 1, 1))
sketch11.addConstraint(Sketcher.Constraint("Coincident", 1, 2, 2, 1))
sketch11.addConstraint(Sketcher.Constraint("Coincident", 2, 2, 3, 1))
sketch11.addConstraint(Sketcher.Constraint("Coincident", 3, 2, 0, 1))
sketch11.addConstraint(Sketcher.Constraint("Vertical", 0))
sketch11.addConstraint(Sketcher.Constraint("Horizontal", 1))
sketch11.addConstraint(Sketcher.Constraint("Vertical", 2))
sketch11.addConstraint(Sketcher.Constraint("Horizontal", 3))
sketch11.addConstraint(Sketcher.Constraint("Coincident", 1, 2, -1, 1))
sketch11.addConstraint(Sketcher.Constraint("DistanceX", 1, 2, 1, 1, 21.0))
sketch11.addConstraint(Sketcher.Constraint("DistanceY", 0, 2, 0, 1, 5.0))
sketch11.setExpression("Constraints[9]", "Params.sketch11_width")
sketch11.setExpression("Constraints[10]", "Params.sketch11_height")
pad4 = body.newObject("PartDesign::Pad", "Pad003")
pad4.Profile = sketch11
pad4.setExpression("Length", "Params.pad4_length")
pad4.Reversed = True

doc.recompute()
